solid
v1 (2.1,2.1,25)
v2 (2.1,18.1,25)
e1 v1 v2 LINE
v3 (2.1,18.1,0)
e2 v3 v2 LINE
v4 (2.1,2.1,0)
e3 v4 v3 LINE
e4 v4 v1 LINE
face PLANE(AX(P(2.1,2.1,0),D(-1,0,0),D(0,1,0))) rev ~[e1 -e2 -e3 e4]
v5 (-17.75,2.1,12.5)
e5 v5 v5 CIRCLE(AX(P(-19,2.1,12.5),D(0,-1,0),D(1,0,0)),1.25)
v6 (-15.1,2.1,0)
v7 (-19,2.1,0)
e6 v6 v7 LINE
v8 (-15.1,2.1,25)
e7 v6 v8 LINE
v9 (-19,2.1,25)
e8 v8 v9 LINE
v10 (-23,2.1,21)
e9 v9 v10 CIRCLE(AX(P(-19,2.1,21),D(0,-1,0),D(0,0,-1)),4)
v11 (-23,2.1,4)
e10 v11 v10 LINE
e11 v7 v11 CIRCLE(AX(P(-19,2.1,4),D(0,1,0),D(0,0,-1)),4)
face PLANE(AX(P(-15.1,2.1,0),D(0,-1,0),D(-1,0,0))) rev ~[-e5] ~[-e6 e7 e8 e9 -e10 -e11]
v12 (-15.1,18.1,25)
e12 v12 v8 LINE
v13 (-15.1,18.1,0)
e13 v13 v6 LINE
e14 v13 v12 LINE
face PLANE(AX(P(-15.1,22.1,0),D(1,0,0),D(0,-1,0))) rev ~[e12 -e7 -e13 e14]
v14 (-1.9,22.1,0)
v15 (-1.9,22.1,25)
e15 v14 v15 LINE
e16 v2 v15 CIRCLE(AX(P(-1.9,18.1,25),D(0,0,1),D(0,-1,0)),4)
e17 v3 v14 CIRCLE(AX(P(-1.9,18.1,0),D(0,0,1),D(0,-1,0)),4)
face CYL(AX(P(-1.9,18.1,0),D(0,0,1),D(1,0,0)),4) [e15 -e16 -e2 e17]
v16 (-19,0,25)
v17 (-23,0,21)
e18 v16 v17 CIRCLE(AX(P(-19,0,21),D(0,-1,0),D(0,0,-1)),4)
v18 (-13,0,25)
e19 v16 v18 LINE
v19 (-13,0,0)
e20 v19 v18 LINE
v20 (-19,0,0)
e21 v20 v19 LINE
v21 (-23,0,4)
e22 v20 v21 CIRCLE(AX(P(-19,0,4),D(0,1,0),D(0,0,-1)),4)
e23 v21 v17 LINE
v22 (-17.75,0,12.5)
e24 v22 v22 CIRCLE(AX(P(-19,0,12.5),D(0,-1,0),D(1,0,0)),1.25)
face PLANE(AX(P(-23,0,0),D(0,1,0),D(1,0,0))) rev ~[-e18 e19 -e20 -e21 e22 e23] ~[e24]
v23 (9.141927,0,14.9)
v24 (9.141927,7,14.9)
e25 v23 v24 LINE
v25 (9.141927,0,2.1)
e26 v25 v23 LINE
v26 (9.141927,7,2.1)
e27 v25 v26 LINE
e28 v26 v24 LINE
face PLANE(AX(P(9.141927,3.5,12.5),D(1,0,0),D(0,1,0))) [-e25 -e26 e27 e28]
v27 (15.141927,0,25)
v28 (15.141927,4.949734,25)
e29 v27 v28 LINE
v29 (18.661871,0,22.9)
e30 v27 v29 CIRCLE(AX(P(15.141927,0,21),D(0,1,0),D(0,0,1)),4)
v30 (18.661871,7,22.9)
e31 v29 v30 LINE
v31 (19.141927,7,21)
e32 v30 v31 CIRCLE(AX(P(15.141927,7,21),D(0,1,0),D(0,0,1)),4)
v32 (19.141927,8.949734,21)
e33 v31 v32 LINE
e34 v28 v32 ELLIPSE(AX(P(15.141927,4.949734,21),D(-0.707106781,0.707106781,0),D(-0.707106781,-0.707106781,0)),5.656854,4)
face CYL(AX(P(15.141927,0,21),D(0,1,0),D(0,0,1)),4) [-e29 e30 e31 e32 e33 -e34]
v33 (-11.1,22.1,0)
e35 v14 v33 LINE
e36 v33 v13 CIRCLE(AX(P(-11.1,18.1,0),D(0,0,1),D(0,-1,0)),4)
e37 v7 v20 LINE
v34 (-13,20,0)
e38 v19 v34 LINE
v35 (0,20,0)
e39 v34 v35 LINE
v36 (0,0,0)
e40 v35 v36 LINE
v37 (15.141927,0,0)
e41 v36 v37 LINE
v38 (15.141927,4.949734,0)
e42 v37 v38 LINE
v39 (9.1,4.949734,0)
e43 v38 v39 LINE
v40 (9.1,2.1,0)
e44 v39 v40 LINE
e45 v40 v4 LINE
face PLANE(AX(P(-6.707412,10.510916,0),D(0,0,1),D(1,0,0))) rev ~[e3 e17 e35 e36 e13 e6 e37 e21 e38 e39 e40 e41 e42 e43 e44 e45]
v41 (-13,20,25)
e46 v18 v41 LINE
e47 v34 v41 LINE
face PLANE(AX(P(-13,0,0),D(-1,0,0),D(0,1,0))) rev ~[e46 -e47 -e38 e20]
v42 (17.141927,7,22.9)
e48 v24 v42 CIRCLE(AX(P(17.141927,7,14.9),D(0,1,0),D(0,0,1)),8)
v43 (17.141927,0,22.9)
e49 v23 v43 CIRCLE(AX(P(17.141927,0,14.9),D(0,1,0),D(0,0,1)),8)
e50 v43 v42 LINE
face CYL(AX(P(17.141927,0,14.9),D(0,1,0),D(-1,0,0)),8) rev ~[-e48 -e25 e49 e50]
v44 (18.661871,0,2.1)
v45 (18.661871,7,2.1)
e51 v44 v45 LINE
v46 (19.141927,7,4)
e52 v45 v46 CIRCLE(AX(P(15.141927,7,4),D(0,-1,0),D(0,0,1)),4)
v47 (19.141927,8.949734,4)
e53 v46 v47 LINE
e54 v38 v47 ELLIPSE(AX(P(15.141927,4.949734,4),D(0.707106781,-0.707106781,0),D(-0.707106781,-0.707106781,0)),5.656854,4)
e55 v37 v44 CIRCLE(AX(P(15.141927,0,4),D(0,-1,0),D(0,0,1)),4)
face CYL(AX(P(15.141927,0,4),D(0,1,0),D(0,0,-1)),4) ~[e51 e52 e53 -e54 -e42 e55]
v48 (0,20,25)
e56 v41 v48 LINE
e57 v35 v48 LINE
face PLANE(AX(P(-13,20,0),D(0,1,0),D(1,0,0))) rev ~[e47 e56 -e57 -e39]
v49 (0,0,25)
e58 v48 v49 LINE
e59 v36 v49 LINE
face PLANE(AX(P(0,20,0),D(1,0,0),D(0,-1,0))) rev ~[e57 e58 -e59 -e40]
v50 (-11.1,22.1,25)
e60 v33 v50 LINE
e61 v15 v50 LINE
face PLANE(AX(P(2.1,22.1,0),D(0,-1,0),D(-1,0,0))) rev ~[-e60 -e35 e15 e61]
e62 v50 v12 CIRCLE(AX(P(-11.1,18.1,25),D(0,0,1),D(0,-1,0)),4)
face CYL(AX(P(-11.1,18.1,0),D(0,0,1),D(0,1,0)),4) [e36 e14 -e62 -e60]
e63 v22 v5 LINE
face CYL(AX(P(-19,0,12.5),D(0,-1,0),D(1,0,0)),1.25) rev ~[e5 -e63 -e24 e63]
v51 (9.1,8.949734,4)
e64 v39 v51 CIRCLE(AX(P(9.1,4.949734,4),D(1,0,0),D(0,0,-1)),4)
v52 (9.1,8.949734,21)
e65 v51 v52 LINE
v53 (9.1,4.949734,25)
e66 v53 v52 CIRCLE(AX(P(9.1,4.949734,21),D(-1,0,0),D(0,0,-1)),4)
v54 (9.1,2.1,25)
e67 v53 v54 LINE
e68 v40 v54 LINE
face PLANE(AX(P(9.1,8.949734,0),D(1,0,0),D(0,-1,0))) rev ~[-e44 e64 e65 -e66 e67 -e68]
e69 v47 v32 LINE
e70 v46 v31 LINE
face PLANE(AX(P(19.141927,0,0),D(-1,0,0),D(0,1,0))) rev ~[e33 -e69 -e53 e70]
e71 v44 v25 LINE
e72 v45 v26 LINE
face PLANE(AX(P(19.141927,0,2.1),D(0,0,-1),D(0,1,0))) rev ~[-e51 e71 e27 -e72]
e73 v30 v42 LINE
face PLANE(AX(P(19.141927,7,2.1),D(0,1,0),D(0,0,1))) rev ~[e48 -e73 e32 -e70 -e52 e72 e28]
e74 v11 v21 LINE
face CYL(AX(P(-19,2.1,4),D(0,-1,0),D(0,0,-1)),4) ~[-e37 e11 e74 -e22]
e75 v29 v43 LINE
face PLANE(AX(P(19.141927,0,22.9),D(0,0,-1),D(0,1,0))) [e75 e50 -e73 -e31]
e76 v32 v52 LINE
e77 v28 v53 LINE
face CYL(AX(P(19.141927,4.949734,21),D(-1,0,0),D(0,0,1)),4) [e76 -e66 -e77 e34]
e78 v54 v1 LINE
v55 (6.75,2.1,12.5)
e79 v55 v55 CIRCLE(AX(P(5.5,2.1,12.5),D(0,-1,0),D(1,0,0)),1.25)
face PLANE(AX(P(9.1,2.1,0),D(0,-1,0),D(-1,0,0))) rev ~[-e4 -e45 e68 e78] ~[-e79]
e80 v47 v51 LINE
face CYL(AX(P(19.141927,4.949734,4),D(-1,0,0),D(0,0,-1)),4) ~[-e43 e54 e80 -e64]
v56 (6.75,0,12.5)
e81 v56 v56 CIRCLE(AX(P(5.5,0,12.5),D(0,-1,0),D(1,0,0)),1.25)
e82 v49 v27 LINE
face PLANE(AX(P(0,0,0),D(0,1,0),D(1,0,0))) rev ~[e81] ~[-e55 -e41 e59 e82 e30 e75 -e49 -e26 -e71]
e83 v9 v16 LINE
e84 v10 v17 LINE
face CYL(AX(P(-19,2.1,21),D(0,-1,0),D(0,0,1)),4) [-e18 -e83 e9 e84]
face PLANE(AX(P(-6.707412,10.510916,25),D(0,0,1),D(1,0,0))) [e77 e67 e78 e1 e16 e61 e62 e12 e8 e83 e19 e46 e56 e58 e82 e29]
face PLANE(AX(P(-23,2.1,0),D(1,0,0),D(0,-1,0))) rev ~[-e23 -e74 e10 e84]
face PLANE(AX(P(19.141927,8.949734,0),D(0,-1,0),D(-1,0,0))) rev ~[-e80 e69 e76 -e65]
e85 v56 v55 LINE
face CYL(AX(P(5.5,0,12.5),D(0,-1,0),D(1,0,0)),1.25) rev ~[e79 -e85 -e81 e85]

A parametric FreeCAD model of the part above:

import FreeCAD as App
import Part
import Sketcher
from FreeCAD import Vector
Q = App.Units.Quantity


def edges_at(feature, points):
    """Names of the edges that pass closest to the given points."""
    edges = feature.Shape.Edges
    near = lambda p: min(range(len(edges)), key=lambda i: edges[i].distToShape(Part.Vertex(*p))[0])
    return sorted({f"Edge{near(p) + 1}" for p in points})

doc = App.newDocument("Part")
params = doc.addObject("Spreadsheet::Sheet", "Params")
for row, (alias, value) in enumerate([
    ("sketch1_width", "7 mm"),
    ("sketch1_width2", "10 mm"),
    ("sketch1_width3", "13 mm"),
    ("sketch1_height", "20 mm"),
    ("sketch1_width4", "17.2 mm"),
    ("pad1_length", "25 mm"),
    ("sketch2_width", "7 mm"),
    ("sketch2_height", "20.8 mm"),
    ("pocket1_length", "10 mm"),
    ("sketch3_diameter", "2.5 mm"),
    ("pocket2_length", "25 mm"),
    ("fillet_radius", "4 mm"),
    ("fillet2_radius", "8 mm"),
], start=1):
    params.set(f"A{row}", alias)
    params.set(f"B{row}", "=" + value)
    params.setAlias(f"B{row}", alias)

body = doc.addObject("PartDesign::Body", "Body")

# Sketch on XY plane
sketch1 = body.newObject("Sketcher::SketchObject", "Sketch")
sketch1.AttachmentSupport = (doc.getObject("XY_Plane"), [""])
sketch1.MapMode = "FlatFace"
sketch1.addGeometry(Part.LineSegment(Vector(0, 20, 0), Vector(0, 0, 0)), False)
sketch1.addGeometry(Part.LineSegment(Vector(0, 0, 0), Vector(19.141927, 0, 0)), False)
sketch1.addGeometry(Part.LineSegment(Vector(19.141927, 0, 0), Vector(19.141927, 8.949734, 0)), False)
sketch1.addGeometry(Part.LineSegment(Vector(19.141927, 8.949734, 0), Vector(9.1, 8.949734, 0)), False)
sketch1.addGeometry(Part.LineSegment(Vector(9.1, 8.949734, 0), Vector(9.1, 2.1, 0)), False)
sketch1.addGeometry(Part.LineSegment(Vector(9.1, 2.1, 0), Vector(2.1, 2.1, 0)), False)
sketch1.addGeometry(Part.LineSegment(Vector(2.1, 2.1, 0), Vector(2.1, 22.1, 0)), False)
sketch1.addGeometry(Part.LineSegment(Vector(2.1, 22.1, 0), Vector(-15.1, 22.1, 0)), False)
sketch1.addGeometry(Part.LineSegment(Vector(-15.1, 22.1, 0), Vector(-15.1, 2.1, 0)), False)
sketch1.addGeometry(Part.LineSegment(Vector(-15.1, 2.1, 0), Vector(-23, 2.1, 0)), False)
sketch1.addGeometry(Part.LineSegment(Vector(-23, 2.1, 0), Vector(-23, 0, 0)), False)
sketch1.addGeometry(Part.LineSegment(Vector(-23, 0, 0), Vector(-13, 0, 0)), False)
sketch1.addGeometry(Part.LineSegment(Vector(-13, 0, 0), Vector(-13, 20, 0)), False)
sketch1.addGeometry(Part.LineSegment(Vector(-13, 20, 0), Vector(0, 20, 0)), False)
sketch1.addConstraint(Sketcher.Constraint("Coincident", 0, 2, 1, 1))
sketch1.addConstraint(Sketcher.Constraint("Coincident", 1, 2, 2, 1))
sketch1.addConstraint(Sketcher.Constraint("Coincident", 2, 2, 3, 1))
sketch1.addConstraint(Sketcher.Constraint("Coincident", 3, 2, 4, 1))
sketch1.addConstraint(Sketcher.Constraint("Coincident", 4, 2, 5, 1))
sketch1.addConstraint(Sketcher.Constraint("Coincident", 5, 2, 6, 1))
sketch1.addConstraint(Sketcher.Constraint("Coincident", 6, 2, 7, 1))
sketch1.addConstraint(Sketcher.Constraint("Coincident", 7, 2, 8, 1))
sketch1.addConstraint(Sketcher.Constraint("Coincident", 8, 2, 9, 1))
sketch1.addConstraint(Sketcher.Constraint("Coincident", 9, 2, 10, 1))
sketch1.addConstraint(Sketcher.Constraint("Coincident", 10, 2, 11, 1))
sketch1.addConstraint(Sketcher.Constraint("Coincident", 11, 2, 12, 1))
sketch1.addConstraint(Sketcher.Constraint("Coincident", 12, 2, 13, 1))
sketch1.addConstraint(Sketcher.Constraint("Coincident", 13, 2, 0, 1))
sketch1.addConstraint(Sketcher.Constraint("Vertical", 0))
sketch1.addConstraint(Sketcher.Constraint("Horizontal", 1))
sketch1.addConstraint(Sketcher.Constraint("Vertical", 2))
sketch1.addConstraint(Sketcher.Constraint("Horizontal", 3))
sketch1.addConstraint(Sketcher.Constraint("Vertical", 4))
sketch1.addConstraint(Sketcher.Constraint("Horizontal", 5))
sketch1.addConstraint(Sketcher.Constraint("Vertical", 6))
sketch1.addConstraint(Sketcher.Constraint("Horizontal", 7))
sketch1.addConstraint(Sketcher.Constraint("Vertical", 8))
sketch1.addConstraint(Sketcher.Constraint("Horizontal", 9))
sketch1.addConstraint(Sketcher.Constraint("Vertical", 10))
sketch1.addConstraint(Sketcher.Constraint("Horizontal", 11))
sketch1.addConstraint(Sketcher.Constraint("Vertical", 12))
sketch1.addConstraint(Sketcher.Constraint("Horizontal", 13))
sketch1.addConstraint(Sketcher.Constraint("Coincident", 0, 2, -1, 1))
sketch1.addConstraint(Sketcher.Constraint("PointOnObject", 10, 2, -1))
sketch1.addConstraint(Sketcher.Constraint("Horizontal", 5, 2, 8, 2))
sketch1.addConstraint(Sketcher.Constraint("Equal", 0, 6))
sketch1.addConstraint(Sketcher.Constraint("DistanceX", 5, 2, 5, 1, Q("7 mm")))
sketch1.addConstraint(Sketcher.Constraint("DistanceX", 11, 1, 11, 2, Q("10 mm")))
sketch1.addConstraint(Sketcher.Constraint("DistanceX", 13, 1, 13, 2, Q("13 mm")))
sketch1.addConstraint(Sketcher.Constraint("DistanceY", 0, 2, 0, 1, Q("20 mm")))
sketch1.addConstraint(Sketcher.Constraint("DistanceX", 7, 2, 7, 1, Q("17.2 mm")))
sketch1.addConstraint(Sketcher.Constraint("DistanceX", 9, 2, 9, 1, Q("7.9 mm")))
sketch1.addConstraint(Sketcher.Constraint("DistanceY", 10, 2, 10, 1, Q("2.1 mm")))
sketch1.addConstraint(Sketcher.Constraint("DistanceX", 1, 1, 1, 2, Q("19.141927 mm")))
sketch1.addConstraint(Sketcher.Constraint("DistanceY", 2, 1, 2, 2, Q("8.949734 mm")))
sketch1.setExpression("Constraints[32]", "Params.sketch1_width")
sketch1.setExpression("Constraints[33]", "Params.sketch1_width2")
sketch1.setExpression("Constraints[34]", "Params.sketch1_width3")
sketch1.setExpression("Constraints[35]", "Params.sketch1_height")
sketch1.setExpression("Constraints[36]", "Params.sketch1_width4")
pad1 = body.newObject("PartDesign::Pad", "Pad")
pad1.Profile = sketch1
pad1.setExpression("Length", "Params.pad1_length")

# Sketch on YZ plane
sketch2 = body.newObject("Sketcher::SketchObject", "Sketch001")
sketch2.AttachmentSupport = (doc.getObject("YZ_Plane"), [""])
sketch2.MapMode = "FlatFace"
sketch2.AttachmentOffset = App.Placement(Vector(0, 0, 19.141927), App.Rotation())
sketch2.addGeometry(Part.LineSegment(Vector(0, 22.9, 0), Vector(0, 2.1, 0)), False)
sketch2.addGeometry(Part.LineSegment(Vector(0, 2.1, 0), Vector(7, 2.1, 0)), False)
sketch2.addGeometry(Part.LineSegment(Vector(7, 2.1, 0), Vector(7, 22.9, 0)), False)
sketch2.addGeometry(Part.LineSegment(Vector(7, 22.9, 0), Vector(0, 22.9, 0)), False)
sketch2.addConstraint(Sketcher.Constraint("Coincident", 0, 2, 1, 1))
sketch2.addConstraint(Sketcher.Constraint("Coincident", 1, 2, 2, 1))
sketch2.addConstraint(Sketcher.Constraint("Coincident", 2, 2, 3, 1))
sketch2.addConstraint(Sketcher.Constraint("Coincident", 3, 2, 0, 1))
sketch2.addConstraint(Sketcher.Constraint("Vertical", 0))
sketch2.addConstraint(Sketcher.Constraint("Horizontal", 1))
sketch2.addConstraint(Sketcher.Constraint("Vertical", 2))
sketch2.addConstraint(Sketcher.Constraint("Horizontal", 3))
sketch2.addConstraint(Sketcher.Constraint("PointOnObject", 0, 2, -2))
sketch2.addConstraint(Sketcher.Constraint("DistanceX", 1, 1, 1, 2, Q("7 mm")))
sketch2.addConstraint(Sketcher.Constraint("DistanceY", 0, 2, 0, 1, Q("20.8 mm")))
sketch2.addConstraint(Sketcher.Constraint("DistanceY", -1, 1, 0, 2, Q("2.1 mm")))
sketch2.setExpression("Constraints[9]", "Params.sketch2_width")
sketch2.setExpression("Constraints[10]", "Params.sketch2_height")
pocket1 = body.newObject("PartDesign::Pocket", "Pocket")
pocket1.Profile = sketch2
pocket1.setExpression("Length", "Params.pocket1_length")

# Sketch on XZ plane
sketch3 = body.newObject("Sketcher::SketchObject", "Sketch002")
sketch3.AttachmentSupport = (doc.getObject("XZ_Plane"), [""])
sketch3.MapMode = "FlatFace"
sketch3.addGeometry(Part.Circle(Vector(-19, 12.5, 0), Vector(0, 0, 1), 1.25), False)
sketch3.addGeometry(Part.Circle(Vector(5.5, 12.5, 0), Vector(0, 0, 1), 1.25), False)
sketch3.addConstraint(Sketcher.Constraint("Equal", 0, 1))
sketch3.addConstraint(Sketcher.Constraint("Horizontal", 0, 3, 1, 3))
sketch3.addConstraint(Sketcher.Constraint("Diameter", 0, Q("2.5 mm")))
sketch3.addConstraint(Sketcher.Constraint("DistanceX", 0, 3, -1, 1, Q("19 mm")))
sketch3.addConstraint(Sketcher.Constraint("DistanceY", -1, 1, 0, 3, Q("12.5 mm")))
sketch3.addConstraint(Sketcher.Constraint("DistanceX", -1, 1, 1, 3, Q("5.5 mm")))
sketch3.setExpression("Constraints[2]", "Params.sketch3_diameter")
pocket2 = body.newObject("PartDesign::Pocket", "Pocket001")
pocket2.Profile = sketch3
pocket2.setExpression("Length", "Params.pocket2_length")
doc.recompute()

fillet = body.newObject("PartDesign::Fillet", "Fillet")
fillet.Base = (pocket2, edges_at(pocket2, [
    (-15.1, 22.1, 12.5),
    (2.1, 22.1, 12.5),
    (14.121, 8.95, 25),
    (14.121, 8.95, 0),
    (-23, 1.05, 25),
    (-23, 1.05, 0),
    (19.142, 4.475, 25),
    (19.142, 4.475, 0),
]))
fillet.setExpression("Radius", "Params.fillet_radius")
doc.recompute()

fillet2 = body.newObject("PartDesign::Fillet", "Fillet001")
fillet2.Base = (fillet, edges_at(fillet, [(9.142, 3.5, 22.9)]))
fillet2.setExpression("Radius", "Params.fillet2_radius")

doc.recompute()
